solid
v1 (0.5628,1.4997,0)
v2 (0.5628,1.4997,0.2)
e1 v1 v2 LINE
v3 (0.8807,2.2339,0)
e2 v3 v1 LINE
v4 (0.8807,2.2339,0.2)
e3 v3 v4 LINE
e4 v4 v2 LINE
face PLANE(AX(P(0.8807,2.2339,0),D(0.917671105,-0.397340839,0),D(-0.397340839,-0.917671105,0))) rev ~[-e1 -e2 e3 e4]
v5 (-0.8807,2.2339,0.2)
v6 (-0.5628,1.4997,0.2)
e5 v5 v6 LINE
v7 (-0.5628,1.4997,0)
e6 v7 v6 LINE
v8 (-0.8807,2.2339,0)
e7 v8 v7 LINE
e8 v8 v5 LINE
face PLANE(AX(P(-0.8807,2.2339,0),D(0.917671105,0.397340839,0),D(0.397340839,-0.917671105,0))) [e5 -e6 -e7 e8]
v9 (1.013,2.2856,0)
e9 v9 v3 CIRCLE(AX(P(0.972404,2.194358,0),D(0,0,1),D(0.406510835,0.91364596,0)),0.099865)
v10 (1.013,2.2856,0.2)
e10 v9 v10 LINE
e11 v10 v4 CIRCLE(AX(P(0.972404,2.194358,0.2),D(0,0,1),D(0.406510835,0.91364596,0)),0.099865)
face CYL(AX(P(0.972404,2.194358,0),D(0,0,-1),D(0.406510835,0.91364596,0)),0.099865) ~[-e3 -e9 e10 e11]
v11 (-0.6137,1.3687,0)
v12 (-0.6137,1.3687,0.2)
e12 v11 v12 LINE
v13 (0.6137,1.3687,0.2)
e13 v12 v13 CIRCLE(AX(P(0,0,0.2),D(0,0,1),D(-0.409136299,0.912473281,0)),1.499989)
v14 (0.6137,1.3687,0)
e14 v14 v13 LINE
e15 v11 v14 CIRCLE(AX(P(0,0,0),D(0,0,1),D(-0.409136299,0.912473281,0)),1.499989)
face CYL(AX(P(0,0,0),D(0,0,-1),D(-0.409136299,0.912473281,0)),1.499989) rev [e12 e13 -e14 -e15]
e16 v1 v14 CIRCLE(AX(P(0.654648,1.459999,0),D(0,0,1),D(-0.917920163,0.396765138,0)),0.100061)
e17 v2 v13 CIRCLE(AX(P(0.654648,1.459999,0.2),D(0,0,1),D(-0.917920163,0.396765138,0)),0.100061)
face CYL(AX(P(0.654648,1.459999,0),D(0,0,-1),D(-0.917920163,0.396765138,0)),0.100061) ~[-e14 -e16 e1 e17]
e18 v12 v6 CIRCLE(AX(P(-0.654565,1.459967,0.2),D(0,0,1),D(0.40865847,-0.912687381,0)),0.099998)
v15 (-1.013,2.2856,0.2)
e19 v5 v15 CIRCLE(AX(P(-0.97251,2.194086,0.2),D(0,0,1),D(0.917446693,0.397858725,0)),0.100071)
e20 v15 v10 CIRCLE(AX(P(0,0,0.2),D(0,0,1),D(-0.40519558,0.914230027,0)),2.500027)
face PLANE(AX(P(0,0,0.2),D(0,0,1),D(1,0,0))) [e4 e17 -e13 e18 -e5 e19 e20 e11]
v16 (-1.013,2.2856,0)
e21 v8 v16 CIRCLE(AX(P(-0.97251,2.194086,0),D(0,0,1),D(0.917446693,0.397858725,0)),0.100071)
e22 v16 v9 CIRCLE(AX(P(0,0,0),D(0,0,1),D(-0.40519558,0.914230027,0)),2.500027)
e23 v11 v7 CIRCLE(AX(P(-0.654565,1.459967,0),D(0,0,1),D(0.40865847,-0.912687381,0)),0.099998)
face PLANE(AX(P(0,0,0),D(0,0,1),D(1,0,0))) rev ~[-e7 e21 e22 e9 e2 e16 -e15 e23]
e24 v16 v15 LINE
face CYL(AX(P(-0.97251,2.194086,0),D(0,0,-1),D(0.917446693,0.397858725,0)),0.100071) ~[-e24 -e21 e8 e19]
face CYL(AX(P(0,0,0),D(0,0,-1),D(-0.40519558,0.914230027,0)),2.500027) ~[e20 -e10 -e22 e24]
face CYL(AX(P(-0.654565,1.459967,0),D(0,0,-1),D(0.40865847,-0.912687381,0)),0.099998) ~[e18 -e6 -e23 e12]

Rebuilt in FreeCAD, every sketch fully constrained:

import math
import FreeCAD as App
import Part
import Sketcher

doc = App.newDocument("Part")
body = doc.addObject("PartDesign::Body", "Body")

# Sketch on XY plane
sketch1 = body.newObject("Sketcher::SketchObject", "Sketch")
sketch1.AttachmentSupport = (doc.getObject("XY_Plane"), [""])
sketch1.MapMode = "FlatFace"
sketch1.addGeometry([
    Part.ArcOfCircle(Part.Circle(App.Vector(0, 0, 0), App.Vector(0, 0, 1), 1.499989), math.radians(114.15059), math.radians(425.84941)),  # 0
    Part.ArcOfCircle(Part.Circle(App.Vector(-0.6546, 1.46, 0), App.Vector(0, 0, 1), 0.100042), math.radians(-65.868875), math.radians(23.386642)),  # 1
    Part.LineSegment(App.Vector(-0.5628, 1.4997, 0), App.Vector(-0.8807, 2.2339, 0)),  # 2
    Part.ArcOfCircle(Part.Circle(App.Vector(-0.9724, 2.1942, 0), App.Vector(0, 0, 1), 0.099925), math.radians(23.409402), math.radians(113.950855)),  # 3
    Part.ArcOfCircle(Part.Circle(App.Vector(0, 0, 0), App.Vector(0, 0, 1), 2.500027), math.radians(113.903384), math.radians(426.096616)),  # 4
    Part.ArcOfCircle(Part.Circle(App.Vector(0.9724, 2.1942, 0), App.Vector(0, 0, 1), 0.100012), math.radians(66.049145), math.radians(156.590598)),  # 5
    Part.LineSegment(App.Vector(0.8807, 2.2339, 0), App.Vector(0.5628, 1.4997, 0)),  # 6
    Part.ArcOfCircle(Part.Circle(App.Vector(0.6546, 1.46, 0), App.Vector(0, 0, 1), 0.100017), math.radians(156.613358), math.radians(245.868875)),  # 7
], False)
sketch1.addConstraint([
    Sketcher.Constraint("Coincident", 0, 1, 1, 1),
    Sketcher.Constraint("Coincident", 1, 2, 2, 1),
    Sketcher.Constraint("Coincident", 2, 2, 3, 1),
    Sketcher.Constraint("Coincident", 3, 2, 4, 1),
    Sketcher.Constraint("Coincident", 4, 2, 5, 1),
    Sketcher.Constraint("Coincident", 5, 2, 6, 1),
    Sketcher.Constraint("Coincident", 6, 2, 7, 1),
    Sketcher.Constraint("Coincident", 7, 2, 0, 2),
    Sketcher.Constraint("Coincident", 0, 3, -1, 1),
    Sketcher.Constraint("Coincident", 4, 3, -1, 1),
    Sketcher.Constraint("Radius", 0, 1.5),
    Sketcher.Constraint("Radius", 1, 0.1),
    Sketcher.Constraint("Radius", 3, 0.1),
    Sketcher.Constraint("Radius", 4, 2.5),
    Sketcher.Constraint("Radius", 5, 0.1),
    Sketcher.Constraint("Radius", 7, 0.1),
    Sketcher.Constraint("Distance", 2, 0.8),
    Sketcher.Constraint("Distance", 6, 0.8),
    Sketcher.Constraint("DistanceY", -1, 1, 1, 2, 1.4997),
    Sketcher.Constraint("DistanceY", -1, 1, 6, 2, 1.4997),
    Sketcher.Constraint("DistanceY", -1, 1, 1, 3, 1.46),
    Sketcher.Constraint("DistanceY", -1, 1, 7, 3, 1.46),
    Sketcher.Constraint("DistanceY", -1, 1, 2, 2, 2.234),
    Sketcher.Constraint("DistanceX", 3, 2, -1, 1, 1.013),
    Sketcher.Constraint("DistanceX", -1, 1, 4, 2, 1.013),
    Sketcher.Constraint("DistanceY", -1, 1, 5, 2, 2.234),
    Sketcher.Constraint("DistanceX", 1, 3, 0, 1, 0.041),
    Sketcher.Constraint("DistanceX", 7, 2, 7, 3, 0.041),
])
pad1 = body.newObject("PartDesign::Pad", "Pad")
pad1.Profile = sketch1
pad1.Length = 0.2

doc.recompute()
